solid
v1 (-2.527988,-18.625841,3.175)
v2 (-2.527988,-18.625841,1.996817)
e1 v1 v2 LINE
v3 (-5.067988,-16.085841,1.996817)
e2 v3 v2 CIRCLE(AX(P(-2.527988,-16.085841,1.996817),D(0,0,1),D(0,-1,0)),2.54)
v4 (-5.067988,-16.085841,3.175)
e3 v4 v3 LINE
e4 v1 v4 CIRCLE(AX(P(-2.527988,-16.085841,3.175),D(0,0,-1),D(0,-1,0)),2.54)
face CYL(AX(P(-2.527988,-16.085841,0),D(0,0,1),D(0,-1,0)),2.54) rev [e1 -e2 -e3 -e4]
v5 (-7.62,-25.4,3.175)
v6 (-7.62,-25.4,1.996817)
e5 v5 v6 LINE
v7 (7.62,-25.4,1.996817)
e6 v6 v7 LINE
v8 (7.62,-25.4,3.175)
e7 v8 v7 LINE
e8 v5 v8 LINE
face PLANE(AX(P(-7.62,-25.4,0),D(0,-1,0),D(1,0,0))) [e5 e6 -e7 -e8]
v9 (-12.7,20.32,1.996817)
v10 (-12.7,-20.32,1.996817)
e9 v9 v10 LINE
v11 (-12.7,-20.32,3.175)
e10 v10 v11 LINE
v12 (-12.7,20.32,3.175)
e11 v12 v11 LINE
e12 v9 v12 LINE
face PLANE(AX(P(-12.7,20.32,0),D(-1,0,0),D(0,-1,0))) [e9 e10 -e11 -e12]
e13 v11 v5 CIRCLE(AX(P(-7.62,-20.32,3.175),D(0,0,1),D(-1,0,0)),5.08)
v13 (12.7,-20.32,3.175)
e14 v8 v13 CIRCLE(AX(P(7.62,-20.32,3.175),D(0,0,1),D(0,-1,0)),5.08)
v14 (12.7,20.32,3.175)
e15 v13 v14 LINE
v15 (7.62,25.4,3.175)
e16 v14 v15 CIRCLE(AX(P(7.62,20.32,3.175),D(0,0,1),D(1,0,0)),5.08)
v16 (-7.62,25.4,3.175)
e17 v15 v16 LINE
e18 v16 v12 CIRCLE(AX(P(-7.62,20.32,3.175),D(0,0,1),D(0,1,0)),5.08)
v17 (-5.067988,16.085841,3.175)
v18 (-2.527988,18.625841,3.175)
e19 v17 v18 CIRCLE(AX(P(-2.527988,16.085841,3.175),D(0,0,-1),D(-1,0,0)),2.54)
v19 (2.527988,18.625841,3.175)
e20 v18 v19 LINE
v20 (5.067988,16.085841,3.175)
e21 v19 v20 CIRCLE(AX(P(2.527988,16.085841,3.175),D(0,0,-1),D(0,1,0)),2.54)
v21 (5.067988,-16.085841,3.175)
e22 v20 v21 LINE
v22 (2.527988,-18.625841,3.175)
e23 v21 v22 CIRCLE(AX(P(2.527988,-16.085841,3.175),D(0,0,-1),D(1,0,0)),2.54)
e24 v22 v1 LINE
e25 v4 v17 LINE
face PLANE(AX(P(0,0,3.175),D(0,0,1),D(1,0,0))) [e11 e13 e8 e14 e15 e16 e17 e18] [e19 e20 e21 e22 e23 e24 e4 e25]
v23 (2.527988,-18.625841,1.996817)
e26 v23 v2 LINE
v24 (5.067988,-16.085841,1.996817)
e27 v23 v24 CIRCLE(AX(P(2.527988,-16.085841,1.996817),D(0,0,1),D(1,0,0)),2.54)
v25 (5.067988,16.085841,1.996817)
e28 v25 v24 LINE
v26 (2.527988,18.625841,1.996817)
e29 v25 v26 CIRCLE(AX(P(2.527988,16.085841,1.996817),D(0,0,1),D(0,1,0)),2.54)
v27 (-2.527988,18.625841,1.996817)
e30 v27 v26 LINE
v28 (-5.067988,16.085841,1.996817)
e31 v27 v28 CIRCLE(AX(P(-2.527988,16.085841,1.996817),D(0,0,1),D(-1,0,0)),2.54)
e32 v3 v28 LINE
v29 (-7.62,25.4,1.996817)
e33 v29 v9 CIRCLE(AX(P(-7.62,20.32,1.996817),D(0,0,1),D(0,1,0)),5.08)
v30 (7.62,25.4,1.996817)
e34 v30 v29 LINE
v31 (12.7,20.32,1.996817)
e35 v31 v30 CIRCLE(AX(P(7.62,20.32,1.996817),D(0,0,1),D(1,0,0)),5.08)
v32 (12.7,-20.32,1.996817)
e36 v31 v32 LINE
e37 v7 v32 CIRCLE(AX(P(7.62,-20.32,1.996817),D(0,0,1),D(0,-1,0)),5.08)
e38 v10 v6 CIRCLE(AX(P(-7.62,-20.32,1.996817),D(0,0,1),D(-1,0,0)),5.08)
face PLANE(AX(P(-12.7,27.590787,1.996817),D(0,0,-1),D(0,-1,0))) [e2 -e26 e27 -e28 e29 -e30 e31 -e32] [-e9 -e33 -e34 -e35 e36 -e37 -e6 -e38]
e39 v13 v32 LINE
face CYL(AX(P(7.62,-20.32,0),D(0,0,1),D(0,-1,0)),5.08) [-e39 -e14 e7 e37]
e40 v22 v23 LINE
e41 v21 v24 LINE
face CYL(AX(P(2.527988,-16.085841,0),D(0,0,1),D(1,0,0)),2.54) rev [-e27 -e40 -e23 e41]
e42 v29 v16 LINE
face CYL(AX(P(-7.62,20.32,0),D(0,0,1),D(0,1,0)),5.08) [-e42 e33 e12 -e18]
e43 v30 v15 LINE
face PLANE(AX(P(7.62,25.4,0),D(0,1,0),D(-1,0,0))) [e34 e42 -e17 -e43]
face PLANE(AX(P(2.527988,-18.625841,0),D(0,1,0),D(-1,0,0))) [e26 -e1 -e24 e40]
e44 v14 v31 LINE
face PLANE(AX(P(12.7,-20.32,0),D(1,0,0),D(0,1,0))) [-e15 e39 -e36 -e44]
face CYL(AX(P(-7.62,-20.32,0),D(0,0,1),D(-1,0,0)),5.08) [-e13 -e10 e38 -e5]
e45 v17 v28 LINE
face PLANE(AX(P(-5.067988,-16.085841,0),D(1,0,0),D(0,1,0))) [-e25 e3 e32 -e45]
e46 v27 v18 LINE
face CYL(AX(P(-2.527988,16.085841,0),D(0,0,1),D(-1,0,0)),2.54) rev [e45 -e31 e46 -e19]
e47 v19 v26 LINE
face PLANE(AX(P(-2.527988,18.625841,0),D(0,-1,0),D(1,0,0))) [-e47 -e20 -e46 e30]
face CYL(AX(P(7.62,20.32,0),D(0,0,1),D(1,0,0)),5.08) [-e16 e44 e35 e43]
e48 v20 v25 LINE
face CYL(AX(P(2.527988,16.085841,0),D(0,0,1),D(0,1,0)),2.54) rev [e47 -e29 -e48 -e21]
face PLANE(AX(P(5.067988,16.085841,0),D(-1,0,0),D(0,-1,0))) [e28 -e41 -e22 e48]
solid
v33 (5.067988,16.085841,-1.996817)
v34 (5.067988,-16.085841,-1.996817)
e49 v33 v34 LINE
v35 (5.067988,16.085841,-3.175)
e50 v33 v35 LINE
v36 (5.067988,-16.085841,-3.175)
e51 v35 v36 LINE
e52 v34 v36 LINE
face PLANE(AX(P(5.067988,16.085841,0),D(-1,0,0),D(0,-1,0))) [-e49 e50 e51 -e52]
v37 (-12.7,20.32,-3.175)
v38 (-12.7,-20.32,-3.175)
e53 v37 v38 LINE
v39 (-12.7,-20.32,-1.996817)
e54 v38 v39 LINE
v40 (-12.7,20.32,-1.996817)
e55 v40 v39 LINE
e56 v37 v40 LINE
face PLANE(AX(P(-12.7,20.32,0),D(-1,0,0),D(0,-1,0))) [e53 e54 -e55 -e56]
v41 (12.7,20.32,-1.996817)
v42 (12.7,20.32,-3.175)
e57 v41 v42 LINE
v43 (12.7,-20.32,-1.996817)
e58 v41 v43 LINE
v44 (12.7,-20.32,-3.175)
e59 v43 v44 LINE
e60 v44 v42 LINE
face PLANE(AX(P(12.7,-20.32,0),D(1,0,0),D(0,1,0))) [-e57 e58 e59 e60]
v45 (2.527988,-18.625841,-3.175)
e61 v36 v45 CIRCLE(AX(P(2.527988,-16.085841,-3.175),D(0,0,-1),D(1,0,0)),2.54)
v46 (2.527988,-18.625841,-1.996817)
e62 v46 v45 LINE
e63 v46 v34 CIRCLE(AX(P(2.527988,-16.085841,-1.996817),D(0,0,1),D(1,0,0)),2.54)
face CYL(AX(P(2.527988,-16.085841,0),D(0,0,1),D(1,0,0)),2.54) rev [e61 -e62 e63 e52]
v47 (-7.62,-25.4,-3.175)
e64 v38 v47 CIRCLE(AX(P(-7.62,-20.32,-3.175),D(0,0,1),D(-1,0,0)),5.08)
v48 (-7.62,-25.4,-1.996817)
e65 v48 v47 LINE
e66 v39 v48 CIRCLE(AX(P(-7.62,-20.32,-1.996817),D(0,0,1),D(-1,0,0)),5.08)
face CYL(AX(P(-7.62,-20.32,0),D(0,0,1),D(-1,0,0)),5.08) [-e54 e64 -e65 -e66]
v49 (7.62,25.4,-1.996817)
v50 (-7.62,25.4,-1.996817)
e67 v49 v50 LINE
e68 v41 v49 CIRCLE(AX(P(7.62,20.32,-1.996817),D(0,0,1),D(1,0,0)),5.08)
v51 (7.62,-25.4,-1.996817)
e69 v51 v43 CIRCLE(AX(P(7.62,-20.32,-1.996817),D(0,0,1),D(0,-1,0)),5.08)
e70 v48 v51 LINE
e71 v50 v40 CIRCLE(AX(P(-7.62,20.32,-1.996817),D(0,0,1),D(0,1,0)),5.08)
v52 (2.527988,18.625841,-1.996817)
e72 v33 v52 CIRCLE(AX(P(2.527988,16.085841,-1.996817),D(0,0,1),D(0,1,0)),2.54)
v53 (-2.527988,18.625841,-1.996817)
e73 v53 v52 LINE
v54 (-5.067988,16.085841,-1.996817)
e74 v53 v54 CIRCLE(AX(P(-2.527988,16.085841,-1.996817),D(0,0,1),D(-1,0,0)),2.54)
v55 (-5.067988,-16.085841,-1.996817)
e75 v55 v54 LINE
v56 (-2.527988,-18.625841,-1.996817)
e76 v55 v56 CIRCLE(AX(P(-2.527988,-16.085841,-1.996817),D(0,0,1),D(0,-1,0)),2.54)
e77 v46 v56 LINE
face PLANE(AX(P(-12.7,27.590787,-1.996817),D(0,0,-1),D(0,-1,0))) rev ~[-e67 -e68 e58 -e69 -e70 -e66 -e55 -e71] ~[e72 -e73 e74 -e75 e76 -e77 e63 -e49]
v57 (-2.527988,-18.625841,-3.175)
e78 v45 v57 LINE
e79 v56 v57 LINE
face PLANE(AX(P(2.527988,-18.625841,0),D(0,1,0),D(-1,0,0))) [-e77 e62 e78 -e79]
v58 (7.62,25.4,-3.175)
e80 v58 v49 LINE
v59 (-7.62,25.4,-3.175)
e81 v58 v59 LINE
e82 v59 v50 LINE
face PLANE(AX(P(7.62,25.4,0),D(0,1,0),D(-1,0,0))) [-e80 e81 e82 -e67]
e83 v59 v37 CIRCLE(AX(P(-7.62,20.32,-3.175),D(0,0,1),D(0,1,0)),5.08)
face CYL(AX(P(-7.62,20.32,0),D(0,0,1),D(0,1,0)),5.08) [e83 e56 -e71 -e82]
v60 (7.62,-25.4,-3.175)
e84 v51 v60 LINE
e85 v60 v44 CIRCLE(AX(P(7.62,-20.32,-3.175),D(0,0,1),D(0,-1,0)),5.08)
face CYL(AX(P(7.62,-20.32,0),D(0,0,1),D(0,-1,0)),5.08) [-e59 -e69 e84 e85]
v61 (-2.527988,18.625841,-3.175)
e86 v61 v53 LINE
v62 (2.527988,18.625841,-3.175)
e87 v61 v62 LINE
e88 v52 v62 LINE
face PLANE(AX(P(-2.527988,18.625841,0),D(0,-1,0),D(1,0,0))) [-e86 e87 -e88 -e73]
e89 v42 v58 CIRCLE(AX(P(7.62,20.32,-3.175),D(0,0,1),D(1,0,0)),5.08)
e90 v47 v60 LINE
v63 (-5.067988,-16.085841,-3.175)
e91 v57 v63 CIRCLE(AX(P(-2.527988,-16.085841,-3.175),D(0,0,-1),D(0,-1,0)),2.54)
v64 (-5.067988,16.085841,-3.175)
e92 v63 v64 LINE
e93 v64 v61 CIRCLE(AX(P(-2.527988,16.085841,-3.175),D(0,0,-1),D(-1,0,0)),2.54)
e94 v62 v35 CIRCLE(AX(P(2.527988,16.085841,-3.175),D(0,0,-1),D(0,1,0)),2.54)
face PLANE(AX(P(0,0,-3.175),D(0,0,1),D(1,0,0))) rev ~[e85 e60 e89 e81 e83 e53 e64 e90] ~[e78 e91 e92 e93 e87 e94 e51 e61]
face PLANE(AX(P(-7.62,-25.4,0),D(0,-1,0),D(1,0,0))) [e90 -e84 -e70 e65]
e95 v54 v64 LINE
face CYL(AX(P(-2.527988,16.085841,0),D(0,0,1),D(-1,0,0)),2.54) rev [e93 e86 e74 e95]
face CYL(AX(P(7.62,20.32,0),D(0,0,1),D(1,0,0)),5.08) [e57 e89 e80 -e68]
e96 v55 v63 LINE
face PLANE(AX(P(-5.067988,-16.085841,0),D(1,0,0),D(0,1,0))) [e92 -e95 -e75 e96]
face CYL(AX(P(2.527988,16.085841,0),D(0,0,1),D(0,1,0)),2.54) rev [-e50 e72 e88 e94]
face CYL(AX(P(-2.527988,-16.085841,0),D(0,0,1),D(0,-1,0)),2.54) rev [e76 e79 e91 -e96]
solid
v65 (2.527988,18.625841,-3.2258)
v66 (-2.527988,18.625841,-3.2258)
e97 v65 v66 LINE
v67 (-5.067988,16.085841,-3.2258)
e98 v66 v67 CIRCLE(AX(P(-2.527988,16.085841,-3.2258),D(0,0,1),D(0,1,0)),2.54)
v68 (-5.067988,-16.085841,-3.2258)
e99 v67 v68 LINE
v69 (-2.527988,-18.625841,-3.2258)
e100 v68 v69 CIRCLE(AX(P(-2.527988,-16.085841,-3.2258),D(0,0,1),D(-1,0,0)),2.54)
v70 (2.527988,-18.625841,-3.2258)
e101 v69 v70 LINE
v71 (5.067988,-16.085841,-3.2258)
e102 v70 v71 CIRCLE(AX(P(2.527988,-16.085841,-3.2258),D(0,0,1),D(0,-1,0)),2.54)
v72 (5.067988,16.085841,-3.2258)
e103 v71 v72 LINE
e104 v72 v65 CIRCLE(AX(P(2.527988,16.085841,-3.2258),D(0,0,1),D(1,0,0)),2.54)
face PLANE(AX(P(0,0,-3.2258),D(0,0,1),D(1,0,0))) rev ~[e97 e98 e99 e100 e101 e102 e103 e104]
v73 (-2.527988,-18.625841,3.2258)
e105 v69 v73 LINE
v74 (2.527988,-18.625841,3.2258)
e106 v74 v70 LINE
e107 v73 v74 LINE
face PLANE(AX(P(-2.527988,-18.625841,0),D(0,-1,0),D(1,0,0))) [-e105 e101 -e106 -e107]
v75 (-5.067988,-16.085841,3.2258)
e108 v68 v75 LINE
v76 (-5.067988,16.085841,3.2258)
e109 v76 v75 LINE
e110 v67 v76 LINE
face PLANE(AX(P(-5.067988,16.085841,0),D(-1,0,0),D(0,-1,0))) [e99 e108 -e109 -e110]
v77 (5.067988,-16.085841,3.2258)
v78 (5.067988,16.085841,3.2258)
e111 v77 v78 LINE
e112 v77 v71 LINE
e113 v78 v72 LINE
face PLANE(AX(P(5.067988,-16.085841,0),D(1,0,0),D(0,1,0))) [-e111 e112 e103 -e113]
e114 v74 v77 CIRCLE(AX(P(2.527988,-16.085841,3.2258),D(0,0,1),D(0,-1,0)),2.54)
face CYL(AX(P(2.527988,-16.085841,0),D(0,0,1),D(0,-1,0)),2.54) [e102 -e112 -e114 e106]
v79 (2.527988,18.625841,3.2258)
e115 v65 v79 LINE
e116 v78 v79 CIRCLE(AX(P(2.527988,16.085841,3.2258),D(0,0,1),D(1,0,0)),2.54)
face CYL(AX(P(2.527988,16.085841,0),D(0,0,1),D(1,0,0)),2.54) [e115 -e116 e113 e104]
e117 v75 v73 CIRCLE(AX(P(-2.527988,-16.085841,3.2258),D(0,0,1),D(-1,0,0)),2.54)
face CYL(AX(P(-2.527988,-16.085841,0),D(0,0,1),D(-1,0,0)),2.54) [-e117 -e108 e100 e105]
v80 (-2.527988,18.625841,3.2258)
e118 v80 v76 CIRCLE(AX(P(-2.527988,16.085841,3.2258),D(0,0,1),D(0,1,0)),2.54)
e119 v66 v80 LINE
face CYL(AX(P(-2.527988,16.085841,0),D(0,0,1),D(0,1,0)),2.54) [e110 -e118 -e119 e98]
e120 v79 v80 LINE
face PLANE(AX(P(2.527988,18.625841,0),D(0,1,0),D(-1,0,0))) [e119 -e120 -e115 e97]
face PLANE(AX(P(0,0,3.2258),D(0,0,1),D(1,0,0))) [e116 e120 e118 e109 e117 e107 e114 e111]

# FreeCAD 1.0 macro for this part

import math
import FreeCAD as App
import Part
import Sketcher
Q = App.Units.Quantity


def add_polygon(sketch, points):
    """Adds a closed chain of lines whose ends are joined by coincident constraints."""
    first, n = sketch.GeometryCount, len(points)
    for a, b in zip(points, points[1:] + points[:1]):
        sketch.addGeometry(Part.LineSegment(App.Vector(*a, 0), App.Vector(*b, 0)), False)
    for i in range(n):
        sketch.addConstraint(Sketcher.Constraint("Coincident", first + i, 2, first + (i + 1) % n, 1))

doc = App.newDocument("Part")
body = doc.addObject("PartDesign::Body", "Body")
body.AllowCompound = True

sketch1 = body.newObject("Sketcher::SketchObject", "Sketch")
sketch1.AttachmentSupport = (doc.getObject("XY_Plane"), [""])
sketch1.MapMode = "FlatFace"
sketch1.addGeometry([
    Part.ArcOfCircle(Part.Circle(App.Vector(7.6, 20.3, 0), App.Vector(0, 0, 1), 5.1), math.radians(0), math.radians(90)),
    Part.LineSegment(App.Vector(7.6, 25.4, 0), App.Vector(-7.6, 25.4, 0)),
    Part.ArcOfCircle(Part.Circle(App.Vector(-7.6, 20.3, 0), App.Vector(0, 0, 1), 5.1), math.radians(90), math.radians(180)),
    Part.LineSegment(App.Vector(-12.7, 20.3, 0), App.Vector(-12.7, -20.3, 0)),
    Part.ArcOfCircle(Part.Circle(App.Vector(-7.6, -20.3, 0), App.Vector(0, 0, 1), 5.1), math.radians(180), math.radians(270)),
    Part.LineSegment(App.Vector(-7.6, -25.4, 0), App.Vector(7.6, -25.4, 0)),
    Part.ArcOfCircle(Part.Circle(App.Vector(7.6, -20.3, 0), App.Vector(0, 0, 1), 5.1), math.radians(-90), math.radians(0)),
    Part.LineSegment(App.Vector(12.7, -20.3, 0), App.Vector(12.7, 20.3, 0)),
    Part.ArcOfCircle(Part.Circle(App.Vector(-2.5, 16.1, 0), App.Vector(0, 0, 1), 2.5), math.radians(90), math.radians(180)),
    Part.LineSegment(App.Vector(-2.5, 18.6, 0), App.Vector(2.5, 18.6, 0)),
    Part.ArcOfCircle(Part.Circle(App.Vector(2.5, 16.1, 0), App.Vector(0, 0, 1), 2.5), math.radians(0), math.radians(90)),
    Part.LineSegment(App.Vector(5.1, 16.1, 0), App.Vector(5.1, -16.1, 0)),
    Part.ArcOfCircle(Part.Circle(App.Vector(2.5, -16.1, 0), App.Vector(0, 0, 1), 2.5), math.radians(-90), math.radians(0)),
    Part.LineSegment(App.Vector(2.5, -18.6, 0), App.Vector(-2.5, -18.6, 0)),
    Part.ArcOfCircle(Part.Circle(App.Vector(-2.5, -16.1, 0), App.Vector(0, 0, 1), 2.5), math.radians(180), math.radians(270)),
    Part.LineSegment(App.Vector(-5.1, -16.1, 0), App.Vector(-5.1, 16.1, 0)),
], False)
sketch1.addConstraint([
    Sketcher.Constraint("Tangent", 0, 2, 1, 1),
    Sketcher.Constraint("Tangent", 1, 2, 2, 1),
    Sketcher.Constraint("Tangent", 2, 2, 3, 1),
    Sketcher.Constraint("Tangent", 3, 2, 4, 1),
    Sketcher.Constraint("Tangent", 4, 2, 5, 1),
    Sketcher.Constraint("Tangent", 5, 2, 6, 1),
    Sketcher.Constraint("Tangent", 6, 2, 7, 1),
    Sketcher.Constraint("Tangent", 7, 2, 0, 1),
    Sketcher.Constraint("Tangent", 8, 1, 9, 1),
    Sketcher.Constraint("Tangent", 9, 2, 10, 2),
    Sketcher.Constraint("Tangent", 10, 1, 11, 1),
    Sketcher.Constraint("Tangent", 11, 2, 12, 2),
    Sketcher.Constraint("Tangent", 12, 1, 13, 1),
    Sketcher.Constraint("Tangent", 13, 2, 14, 2),
    Sketcher.Constraint("Tangent", 14, 1, 15, 1),
    Sketcher.Constraint("Tangent", 15, 2, 8, 2),
    Sketcher.Constraint("Horizontal", 1),
    Sketcher.Constraint("Vertical", 3),
    Sketcher.Constraint("Horizontal", 5),
    Sketcher.Constraint("Vertical", 7),
    Sketcher.Constraint("Horizontal", 9),
    Sketcher.Constraint("Vertical", 11),
    Sketcher.Constraint("Horizontal", 13),
    Sketcher.Constraint("Vertical", 15),
    Sketcher.Constraint("Equal", 0, 2),
    Sketcher.Constraint("Equal", 2, 4),
    Sketcher.Constraint("Equal", 4, 6),
    Sketcher.Constraint("Equal", 8, 10),
    Sketcher.Constraint("Equal", 10, 12),
    Sketcher.Constraint("Equal", 12, 14),
    Sketcher.Constraint("Symmetric", 0, 3, 4, 3, -1, 1),
    Sketcher.Constraint("Symmetric", 8, 3, 12, 3, -1, 1),
    Sketcher.Constraint("Radius", 0, Q("0.2 in")),
    Sketcher.Constraint("Radius", 8, Q("0.1 in")),
    Sketcher.Constraint("DistanceX", 1, 2, 1, 1, Q("0.6 in")),
    Sketcher.Constraint("DistanceY", 3, 2, 3, 1, Q("1.6 in")),
    Sketcher.Constraint("DistanceY", 11, 2, 11, 1, 32.171681),
    Sketcher.Constraint("DistanceX", 9, 1, 9, 2, 5.055976),
])
pad1 = body.newObject("PartDesign::Pad", "Pad")
pad1.Profile = sketch1
pad1.Length = Q("0.25 in")
pad1.Midplane = True

sketch2 = body.newObject("Sketcher::SketchObject", "Sketch001")
sketch2.AttachmentSupport = (doc.getObject("YZ_Plane"), [""])
sketch2.MapMode = "FlatFace"
sketch2.AttachmentOffset = App.Placement(App.Vector(0, 0, -0.5 * 25.4), App.Rotation())
add_polygon(sketch2, [(27.6, 2), (27.6, -2), (-27.6, -2), (-27.6, 2)])
sketch2.addConstraint([
    Sketcher.Constraint("Vertical", 0),
    Sketcher.Constraint("Horizontal", 1),
    Sketcher.Constraint("Vertical", 2),
    Sketcher.Constraint("Horizontal", 3),
    Sketcher.Constraint("Symmetric", 0, 2, 2, 2, -1, 1),
    Sketcher.Constraint("DistanceX", 1, 2, 1, 1, 55.181574),
    Sketcher.Constraint("DistanceY", 0, 2, 0, 1, 3.993634),
])
pocket1 = body.newObject("PartDesign::Pocket", "Pocket")
pocket1.Profile = sketch2
pocket1.Length = Q("1 in")
pocket1.Reversed = True
body2 = doc.addObject("PartDesign::Body", "Body001")

sketch3 = body2.newObject("Sketcher::SketchObject", "Sketch002")
sketch3.AttachmentSupport = (doc.getObject("XY_Plane001"), [""])
sketch3.MapMode = "FlatFace"
sketch3.addGeometry([
    Part.ArcOfCircle(Part.Circle(App.Vector(2.5, 16.1, 0), App.Vector(0, 0, 1), 2.5), math.radians(0), math.radians(90)),
    Part.LineSegment(App.Vector(2.5, 18.6, 0), App.Vector(-2.5, 18.6, 0)),
    Part.ArcOfCircle(Part.Circle(App.Vector(-2.5, 16.1, 0), App.Vector(0, 0, 1), 2.5), math.radians(90), math.radians(180)),
    Part.LineSegment(App.Vector(-5.1, 16.1, 0), App.Vector(-5.1, -16.1, 0)),
    Part.ArcOfCircle(Part.Circle(App.Vector(-2.5, -16.1, 0), App.Vector(0, 0, 1), 2.5), math.radians(180), math.radians(270)),
    Part.LineSegment(App.Vector(-2.5, -18.6, 0), App.Vector(2.5, -18.6, 0)),
    Part.ArcOfCircle(Part.Circle(App.Vector(2.5, -16.1, 0), App.Vector(0, 0, 1), 2.5), math.radians(-90), math.radians(0)),
    Part.LineSegment(App.Vector(5.1, -16.1, 0), App.Vector(5.1, 16.1, 0)),
], False)
sketch3.addConstraint([
    Sketcher.Constraint("Tangent", 0, 2, 1, 1),
    Sketcher.Constraint("Tangent", 1, 2, 2, 1),
    Sketcher.Constraint("Tangent", 2, 2, 3, 1),
    Sketcher.Constraint("Tangent", 3, 2, 4, 1),
    Sketcher.Constraint("Tangent", 4, 2, 5, 1),
    Sketcher.Constraint("Tangent", 5, 2, 6, 1),
    Sketcher.Constraint("Tangent", 6, 2, 7, 1),
    Sketcher.Constraint("Tangent", 7, 2, 0, 1),
    Sketcher.Constraint("Horizontal", 1),
    Sketcher.Constraint("Vertical", 3),
    Sketcher.Constraint("Horizontal", 5),
    Sketcher.Constraint("Vertical", 7),
    Sketcher.Constraint("Equal", 0, 2),
    Sketcher.Constraint("Equal", 2, 4),
    Sketcher.Constraint("Equal", 4, 6),
    Sketcher.Constraint("Symmetric", 0, 3, 4, 3, -1, 1),
    Sketcher.Constraint("Radius", 0, Q("0.1 in")),
    Sketcher.Constraint("DistanceY", 3, 2, 3, 1, 32.171681),
    Sketcher.Constraint("DistanceX", 1, 2, 1, 1, 5.055976),
])
pad2 = body2.newObject("PartDesign::Pad", "Pad001")
pad2.Profile = sketch3
pad2.Length = Q("0.254 in")
pad2.Midplane = True

doc.recompute()
